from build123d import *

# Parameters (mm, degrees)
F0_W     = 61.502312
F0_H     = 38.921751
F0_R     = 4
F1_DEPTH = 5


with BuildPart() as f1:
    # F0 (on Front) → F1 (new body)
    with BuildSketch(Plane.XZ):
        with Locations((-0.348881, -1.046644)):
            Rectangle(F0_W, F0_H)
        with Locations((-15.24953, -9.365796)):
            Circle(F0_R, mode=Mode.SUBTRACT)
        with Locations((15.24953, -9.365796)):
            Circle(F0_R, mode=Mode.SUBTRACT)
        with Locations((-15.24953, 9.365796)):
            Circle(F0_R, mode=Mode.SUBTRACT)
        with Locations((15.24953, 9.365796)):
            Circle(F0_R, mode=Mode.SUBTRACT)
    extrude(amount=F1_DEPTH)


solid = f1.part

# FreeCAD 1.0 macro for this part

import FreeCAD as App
import Part
import Sketcher

V = App.Vector
Q = App.Units.Quantity

doc = App.newDocument("Part")
body = doc.addObject("PartDesign::Body", "Body")

sketch1 = doc.addObject("Sketcher::SketchObject", "Sketch")
body.addObject(sketch1)
sketch1.AttachmentSupport = (doc.XZ_Plane, [""])
sketch1.MapMode = "FlatFace"
sketch1.addGeometry([
    Part.LineSegment(V(-31.100037, 18.414231, 0), V(-31.100037, -20.50752, 0)),
    Part.LineSegment(V(-31.100037, -20.50752, 0), V(30.402275, -20.50752, 0)),
    Part.LineSegment(V(30.402275, -20.50752, 0), V(30.402275, 18.414231, 0)),
    Part.LineSegment(V(30.402275, 18.414231, 0), V(-31.100037, 18.414231, 0)),
    Part.Circle(V(-15.24953, -9.365796, 0), V(0, 0, 1), 4),
    Part.Circle(V(15.24953, -9.365796, 0), V(0, 0, 1), 4),
    Part.Circle(V(-15.24953, 9.365796, 0), V(0, 0, 1), 4),
    Part.Circle(V(15.24953, 9.365796, 0), V(0, 0, 1), 4),
], False)
sketch1.addConstraint([
    Sketcher.Constraint("Coincident", 0, 2, 1, 1),
    Sketcher.Constraint("Coincident", 1, 2, 2, 1),
    Sketcher.Constraint("Coincident", 2, 2, 3, 1),
    Sketcher.Constraint("Coincident", 3, 2, 0, 1),
    Sketcher.Constraint("Vertical", 0),
    Sketcher.Constraint("Horizontal", 1),
    Sketcher.Constraint("Vertical", 2),
    Sketcher.Constraint("Horizontal", 3),
    Sketcher.Constraint("Equal", 4, 5),
    Sketcher.Constraint("Equal", 5, 6),
    Sketcher.Constraint("Equal", 6, 7),
    Sketcher.Constraint("Symmetric", 5, 3, 6, 3, -1, 1),
    Sketcher.Constraint("Symmetric", 4, 3, 7, 3, -1, 1),
    Sketcher.Constraint("Symmetric", 4, 3, 5, 3, -2),
    Sketcher.Constraint("Diameter", 4, Q("8 mm")),
    Sketcher.Constraint("DistanceY", 0, 2, 0, 1, Q("38.921751 mm")),
    Sketcher.Constraint("DistanceX", 1, 1, 1, 2, Q("61.502312 mm")),
    Sketcher.Constraint("DistanceX", 4, 3, -1, 1, Q("15.24953 mm")),
    Sketcher.Constraint("DistanceY", 0, 2, -1, 1, Q("20.50752 mm")),
    Sketcher.Constraint("DistanceY", 4, 3, 6, 3, Q("18.731592 mm")),
    Sketcher.Constraint("DistanceX", 0, 2, -1, 1, Q("31.100037 mm")),
])
pad1 = doc.addObject("PartDesign::Pad", "Pad")
body.addObject(pad1)
pad1.Profile = sketch1
pad1.Length = 5

doc.recompute()
